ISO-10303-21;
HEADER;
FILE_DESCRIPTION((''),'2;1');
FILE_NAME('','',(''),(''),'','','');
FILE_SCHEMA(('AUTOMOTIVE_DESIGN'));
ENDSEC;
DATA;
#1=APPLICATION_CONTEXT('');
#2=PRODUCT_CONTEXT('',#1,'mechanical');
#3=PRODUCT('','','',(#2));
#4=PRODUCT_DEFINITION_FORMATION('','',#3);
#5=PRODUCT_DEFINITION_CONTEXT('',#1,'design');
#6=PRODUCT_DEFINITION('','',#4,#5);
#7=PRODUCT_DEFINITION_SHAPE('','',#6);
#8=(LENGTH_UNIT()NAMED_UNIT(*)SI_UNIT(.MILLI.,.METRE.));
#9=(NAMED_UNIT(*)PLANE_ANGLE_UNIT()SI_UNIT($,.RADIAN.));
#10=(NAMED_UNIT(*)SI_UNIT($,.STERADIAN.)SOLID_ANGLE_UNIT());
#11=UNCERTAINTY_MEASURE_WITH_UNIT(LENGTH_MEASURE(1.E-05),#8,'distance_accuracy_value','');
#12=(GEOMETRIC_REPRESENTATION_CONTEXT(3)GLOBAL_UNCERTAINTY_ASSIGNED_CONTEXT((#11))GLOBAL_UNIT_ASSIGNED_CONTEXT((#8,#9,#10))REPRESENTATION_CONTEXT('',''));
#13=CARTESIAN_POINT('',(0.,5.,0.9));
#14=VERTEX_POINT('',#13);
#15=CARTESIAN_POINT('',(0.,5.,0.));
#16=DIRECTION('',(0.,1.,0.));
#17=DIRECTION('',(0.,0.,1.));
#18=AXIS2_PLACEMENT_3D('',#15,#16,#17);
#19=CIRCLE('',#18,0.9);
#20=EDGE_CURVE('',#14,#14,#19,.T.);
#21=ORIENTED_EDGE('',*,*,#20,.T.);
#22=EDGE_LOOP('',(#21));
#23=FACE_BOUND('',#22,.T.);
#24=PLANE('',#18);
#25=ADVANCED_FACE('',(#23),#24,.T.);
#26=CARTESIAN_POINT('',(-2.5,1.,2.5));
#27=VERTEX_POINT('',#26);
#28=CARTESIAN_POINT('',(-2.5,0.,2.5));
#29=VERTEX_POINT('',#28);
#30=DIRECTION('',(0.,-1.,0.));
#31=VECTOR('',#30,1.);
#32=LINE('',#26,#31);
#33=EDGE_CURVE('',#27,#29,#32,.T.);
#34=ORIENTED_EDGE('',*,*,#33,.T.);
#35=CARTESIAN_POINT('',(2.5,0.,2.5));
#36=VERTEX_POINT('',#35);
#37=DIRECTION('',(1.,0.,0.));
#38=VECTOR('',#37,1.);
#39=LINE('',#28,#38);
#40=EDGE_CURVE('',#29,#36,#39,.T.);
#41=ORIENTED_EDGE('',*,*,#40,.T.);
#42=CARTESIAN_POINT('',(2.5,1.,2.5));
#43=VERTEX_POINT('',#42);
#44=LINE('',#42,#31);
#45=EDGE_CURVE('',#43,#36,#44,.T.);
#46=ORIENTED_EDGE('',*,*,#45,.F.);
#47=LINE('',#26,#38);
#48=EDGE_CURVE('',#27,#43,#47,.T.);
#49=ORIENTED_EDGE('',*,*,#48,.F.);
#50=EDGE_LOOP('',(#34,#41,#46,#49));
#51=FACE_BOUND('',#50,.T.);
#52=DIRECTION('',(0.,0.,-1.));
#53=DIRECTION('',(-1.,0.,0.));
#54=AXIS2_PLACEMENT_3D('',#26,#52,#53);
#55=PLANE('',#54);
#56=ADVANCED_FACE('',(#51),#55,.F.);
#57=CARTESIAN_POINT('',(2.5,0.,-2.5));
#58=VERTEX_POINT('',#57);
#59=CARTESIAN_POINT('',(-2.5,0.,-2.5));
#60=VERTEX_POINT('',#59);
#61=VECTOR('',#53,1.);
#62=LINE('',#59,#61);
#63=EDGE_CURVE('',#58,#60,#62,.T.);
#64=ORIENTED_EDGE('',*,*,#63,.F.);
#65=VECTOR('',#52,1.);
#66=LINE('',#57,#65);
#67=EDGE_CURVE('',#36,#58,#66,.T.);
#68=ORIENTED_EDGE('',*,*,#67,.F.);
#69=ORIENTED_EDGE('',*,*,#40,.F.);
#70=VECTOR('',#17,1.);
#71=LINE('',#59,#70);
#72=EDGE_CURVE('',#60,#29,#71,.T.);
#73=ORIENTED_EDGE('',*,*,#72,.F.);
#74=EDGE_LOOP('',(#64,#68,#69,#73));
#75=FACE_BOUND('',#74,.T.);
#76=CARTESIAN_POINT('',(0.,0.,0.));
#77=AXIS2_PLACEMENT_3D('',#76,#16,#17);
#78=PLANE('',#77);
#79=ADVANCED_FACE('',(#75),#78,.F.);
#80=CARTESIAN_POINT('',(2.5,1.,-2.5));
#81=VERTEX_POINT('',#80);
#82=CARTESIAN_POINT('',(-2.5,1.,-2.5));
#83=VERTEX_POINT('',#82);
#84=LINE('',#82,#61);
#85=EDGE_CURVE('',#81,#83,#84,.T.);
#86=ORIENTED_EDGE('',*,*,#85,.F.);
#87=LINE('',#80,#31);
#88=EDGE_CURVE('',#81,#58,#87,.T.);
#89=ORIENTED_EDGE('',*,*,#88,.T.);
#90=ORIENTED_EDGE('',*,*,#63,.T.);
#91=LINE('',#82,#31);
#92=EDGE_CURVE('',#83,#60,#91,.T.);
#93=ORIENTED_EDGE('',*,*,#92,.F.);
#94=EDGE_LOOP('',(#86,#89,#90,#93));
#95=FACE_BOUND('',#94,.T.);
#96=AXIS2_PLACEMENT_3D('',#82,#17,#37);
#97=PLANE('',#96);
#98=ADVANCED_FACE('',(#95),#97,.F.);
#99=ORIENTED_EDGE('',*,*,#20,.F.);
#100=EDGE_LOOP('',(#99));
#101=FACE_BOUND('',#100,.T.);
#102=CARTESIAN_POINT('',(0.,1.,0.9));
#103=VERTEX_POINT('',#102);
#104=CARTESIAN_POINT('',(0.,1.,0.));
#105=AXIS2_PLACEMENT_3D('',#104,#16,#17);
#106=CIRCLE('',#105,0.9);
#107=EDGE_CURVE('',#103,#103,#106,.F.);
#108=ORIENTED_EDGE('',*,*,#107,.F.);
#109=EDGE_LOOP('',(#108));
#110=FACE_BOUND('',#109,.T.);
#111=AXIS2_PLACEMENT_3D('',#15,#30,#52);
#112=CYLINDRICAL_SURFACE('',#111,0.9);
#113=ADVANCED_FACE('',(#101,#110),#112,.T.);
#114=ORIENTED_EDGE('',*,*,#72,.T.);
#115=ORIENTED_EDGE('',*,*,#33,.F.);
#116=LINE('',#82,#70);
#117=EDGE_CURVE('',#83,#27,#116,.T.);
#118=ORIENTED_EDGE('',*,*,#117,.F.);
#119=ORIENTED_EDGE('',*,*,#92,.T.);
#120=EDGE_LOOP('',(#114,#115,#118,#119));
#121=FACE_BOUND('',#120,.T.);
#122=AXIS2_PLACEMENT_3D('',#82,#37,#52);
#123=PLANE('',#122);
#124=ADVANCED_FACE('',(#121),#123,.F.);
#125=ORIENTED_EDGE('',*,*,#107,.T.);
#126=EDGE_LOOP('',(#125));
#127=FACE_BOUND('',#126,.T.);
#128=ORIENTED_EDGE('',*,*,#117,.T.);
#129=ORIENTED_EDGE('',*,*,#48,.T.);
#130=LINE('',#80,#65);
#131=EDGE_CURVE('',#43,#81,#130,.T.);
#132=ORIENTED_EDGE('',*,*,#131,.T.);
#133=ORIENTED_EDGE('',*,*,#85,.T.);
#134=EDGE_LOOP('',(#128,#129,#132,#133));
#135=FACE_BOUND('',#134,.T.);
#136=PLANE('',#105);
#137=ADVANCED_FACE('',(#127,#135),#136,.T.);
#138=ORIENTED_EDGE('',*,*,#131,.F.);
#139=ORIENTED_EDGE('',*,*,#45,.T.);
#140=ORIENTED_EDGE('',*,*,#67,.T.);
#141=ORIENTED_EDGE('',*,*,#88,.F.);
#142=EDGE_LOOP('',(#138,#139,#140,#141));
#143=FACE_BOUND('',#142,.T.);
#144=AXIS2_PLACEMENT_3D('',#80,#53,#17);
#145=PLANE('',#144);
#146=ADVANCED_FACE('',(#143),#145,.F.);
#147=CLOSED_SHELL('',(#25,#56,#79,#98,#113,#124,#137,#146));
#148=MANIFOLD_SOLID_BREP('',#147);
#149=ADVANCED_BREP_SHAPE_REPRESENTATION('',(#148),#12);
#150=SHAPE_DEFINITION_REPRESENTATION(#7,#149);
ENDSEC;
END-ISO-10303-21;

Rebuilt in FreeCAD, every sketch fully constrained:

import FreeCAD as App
import Part
import Sketcher
from FreeCAD import Vector


def add_polygon(sketch, points):
    """Adds a closed chain of lines whose ends are joined by coincident constraints."""
    first, n = sketch.GeometryCount, len(points)
    for a, b in zip(points, points[1:] + points[:1]):
        sketch.addGeometry(Part.LineSegment(App.Vector(*a, 0), App.Vector(*b, 0)), False)
    for i in range(n):
        sketch.addConstraint(Sketcher.Constraint("Coincident", first + i, 2, first + (i + 1) % n, 1))

doc = App.newDocument("Part")
body = doc.addObject("PartDesign::Body", "Body")

# Sketch on XZ plane
sketch1 = doc.addObject("Sketcher::SketchObject", "Sketch")
body.addObject(sketch1)
sketch1.AttachmentSupport = (doc.XZ_Plane, [""])
sketch1.MapMode = "FlatFace"
add_polygon(sketch1, [(-2.5, -2.5), (-2.5, 2.5), (2.5, 2.5), (2.5, -2.5)])  # lines 0-3
sketch1.addConstraint([
    Sketcher.Constraint("Vertical", 0),
    Sketcher.Constraint("Horizontal", 1),
    Sketcher.Constraint("Vertical", 2),
    Sketcher.Constraint("Horizontal", 3),
    Sketcher.Constraint("Symmetric", 0, 2, 2, 2, -1, 1),
    Sketcher.Constraint("Equal", 3, 0),
    Sketcher.Constraint("DistanceX", 1, 1, 1, 2, 5.0),
])
pad1 = doc.addObject("PartDesign::Pad", "Pad")
body.addObject(pad1)
pad1.Profile = sketch1
pad1.Length = 1
pad1.Reversed = True

# Sketch on XZ plane
sketch2 = doc.addObject("Sketcher::SketchObject", "Sketch001")
body.addObject(sketch2)
sketch2.AttachmentSupport = (doc.XZ_Plane, [""])
sketch2.MapMode = "FlatFace"
sketch2.addGeometry(Part.Circle(Vector(0, 0, 0), Vector(0, 0, 1), 0.9), False)
sketch2.addConstraint([
    Sketcher.Constraint("Coincident", 0, 3, -1, 1),
    Sketcher.Constraint("Diameter", 0, 1.8),
])
pad2 = doc.addObject("PartDesign::Pad", "Pad001")
body.addObject(pad2)
pad2.Profile = sketch2
pad2.Length = 5
pad2.Reversed = True

doc.recompute()
